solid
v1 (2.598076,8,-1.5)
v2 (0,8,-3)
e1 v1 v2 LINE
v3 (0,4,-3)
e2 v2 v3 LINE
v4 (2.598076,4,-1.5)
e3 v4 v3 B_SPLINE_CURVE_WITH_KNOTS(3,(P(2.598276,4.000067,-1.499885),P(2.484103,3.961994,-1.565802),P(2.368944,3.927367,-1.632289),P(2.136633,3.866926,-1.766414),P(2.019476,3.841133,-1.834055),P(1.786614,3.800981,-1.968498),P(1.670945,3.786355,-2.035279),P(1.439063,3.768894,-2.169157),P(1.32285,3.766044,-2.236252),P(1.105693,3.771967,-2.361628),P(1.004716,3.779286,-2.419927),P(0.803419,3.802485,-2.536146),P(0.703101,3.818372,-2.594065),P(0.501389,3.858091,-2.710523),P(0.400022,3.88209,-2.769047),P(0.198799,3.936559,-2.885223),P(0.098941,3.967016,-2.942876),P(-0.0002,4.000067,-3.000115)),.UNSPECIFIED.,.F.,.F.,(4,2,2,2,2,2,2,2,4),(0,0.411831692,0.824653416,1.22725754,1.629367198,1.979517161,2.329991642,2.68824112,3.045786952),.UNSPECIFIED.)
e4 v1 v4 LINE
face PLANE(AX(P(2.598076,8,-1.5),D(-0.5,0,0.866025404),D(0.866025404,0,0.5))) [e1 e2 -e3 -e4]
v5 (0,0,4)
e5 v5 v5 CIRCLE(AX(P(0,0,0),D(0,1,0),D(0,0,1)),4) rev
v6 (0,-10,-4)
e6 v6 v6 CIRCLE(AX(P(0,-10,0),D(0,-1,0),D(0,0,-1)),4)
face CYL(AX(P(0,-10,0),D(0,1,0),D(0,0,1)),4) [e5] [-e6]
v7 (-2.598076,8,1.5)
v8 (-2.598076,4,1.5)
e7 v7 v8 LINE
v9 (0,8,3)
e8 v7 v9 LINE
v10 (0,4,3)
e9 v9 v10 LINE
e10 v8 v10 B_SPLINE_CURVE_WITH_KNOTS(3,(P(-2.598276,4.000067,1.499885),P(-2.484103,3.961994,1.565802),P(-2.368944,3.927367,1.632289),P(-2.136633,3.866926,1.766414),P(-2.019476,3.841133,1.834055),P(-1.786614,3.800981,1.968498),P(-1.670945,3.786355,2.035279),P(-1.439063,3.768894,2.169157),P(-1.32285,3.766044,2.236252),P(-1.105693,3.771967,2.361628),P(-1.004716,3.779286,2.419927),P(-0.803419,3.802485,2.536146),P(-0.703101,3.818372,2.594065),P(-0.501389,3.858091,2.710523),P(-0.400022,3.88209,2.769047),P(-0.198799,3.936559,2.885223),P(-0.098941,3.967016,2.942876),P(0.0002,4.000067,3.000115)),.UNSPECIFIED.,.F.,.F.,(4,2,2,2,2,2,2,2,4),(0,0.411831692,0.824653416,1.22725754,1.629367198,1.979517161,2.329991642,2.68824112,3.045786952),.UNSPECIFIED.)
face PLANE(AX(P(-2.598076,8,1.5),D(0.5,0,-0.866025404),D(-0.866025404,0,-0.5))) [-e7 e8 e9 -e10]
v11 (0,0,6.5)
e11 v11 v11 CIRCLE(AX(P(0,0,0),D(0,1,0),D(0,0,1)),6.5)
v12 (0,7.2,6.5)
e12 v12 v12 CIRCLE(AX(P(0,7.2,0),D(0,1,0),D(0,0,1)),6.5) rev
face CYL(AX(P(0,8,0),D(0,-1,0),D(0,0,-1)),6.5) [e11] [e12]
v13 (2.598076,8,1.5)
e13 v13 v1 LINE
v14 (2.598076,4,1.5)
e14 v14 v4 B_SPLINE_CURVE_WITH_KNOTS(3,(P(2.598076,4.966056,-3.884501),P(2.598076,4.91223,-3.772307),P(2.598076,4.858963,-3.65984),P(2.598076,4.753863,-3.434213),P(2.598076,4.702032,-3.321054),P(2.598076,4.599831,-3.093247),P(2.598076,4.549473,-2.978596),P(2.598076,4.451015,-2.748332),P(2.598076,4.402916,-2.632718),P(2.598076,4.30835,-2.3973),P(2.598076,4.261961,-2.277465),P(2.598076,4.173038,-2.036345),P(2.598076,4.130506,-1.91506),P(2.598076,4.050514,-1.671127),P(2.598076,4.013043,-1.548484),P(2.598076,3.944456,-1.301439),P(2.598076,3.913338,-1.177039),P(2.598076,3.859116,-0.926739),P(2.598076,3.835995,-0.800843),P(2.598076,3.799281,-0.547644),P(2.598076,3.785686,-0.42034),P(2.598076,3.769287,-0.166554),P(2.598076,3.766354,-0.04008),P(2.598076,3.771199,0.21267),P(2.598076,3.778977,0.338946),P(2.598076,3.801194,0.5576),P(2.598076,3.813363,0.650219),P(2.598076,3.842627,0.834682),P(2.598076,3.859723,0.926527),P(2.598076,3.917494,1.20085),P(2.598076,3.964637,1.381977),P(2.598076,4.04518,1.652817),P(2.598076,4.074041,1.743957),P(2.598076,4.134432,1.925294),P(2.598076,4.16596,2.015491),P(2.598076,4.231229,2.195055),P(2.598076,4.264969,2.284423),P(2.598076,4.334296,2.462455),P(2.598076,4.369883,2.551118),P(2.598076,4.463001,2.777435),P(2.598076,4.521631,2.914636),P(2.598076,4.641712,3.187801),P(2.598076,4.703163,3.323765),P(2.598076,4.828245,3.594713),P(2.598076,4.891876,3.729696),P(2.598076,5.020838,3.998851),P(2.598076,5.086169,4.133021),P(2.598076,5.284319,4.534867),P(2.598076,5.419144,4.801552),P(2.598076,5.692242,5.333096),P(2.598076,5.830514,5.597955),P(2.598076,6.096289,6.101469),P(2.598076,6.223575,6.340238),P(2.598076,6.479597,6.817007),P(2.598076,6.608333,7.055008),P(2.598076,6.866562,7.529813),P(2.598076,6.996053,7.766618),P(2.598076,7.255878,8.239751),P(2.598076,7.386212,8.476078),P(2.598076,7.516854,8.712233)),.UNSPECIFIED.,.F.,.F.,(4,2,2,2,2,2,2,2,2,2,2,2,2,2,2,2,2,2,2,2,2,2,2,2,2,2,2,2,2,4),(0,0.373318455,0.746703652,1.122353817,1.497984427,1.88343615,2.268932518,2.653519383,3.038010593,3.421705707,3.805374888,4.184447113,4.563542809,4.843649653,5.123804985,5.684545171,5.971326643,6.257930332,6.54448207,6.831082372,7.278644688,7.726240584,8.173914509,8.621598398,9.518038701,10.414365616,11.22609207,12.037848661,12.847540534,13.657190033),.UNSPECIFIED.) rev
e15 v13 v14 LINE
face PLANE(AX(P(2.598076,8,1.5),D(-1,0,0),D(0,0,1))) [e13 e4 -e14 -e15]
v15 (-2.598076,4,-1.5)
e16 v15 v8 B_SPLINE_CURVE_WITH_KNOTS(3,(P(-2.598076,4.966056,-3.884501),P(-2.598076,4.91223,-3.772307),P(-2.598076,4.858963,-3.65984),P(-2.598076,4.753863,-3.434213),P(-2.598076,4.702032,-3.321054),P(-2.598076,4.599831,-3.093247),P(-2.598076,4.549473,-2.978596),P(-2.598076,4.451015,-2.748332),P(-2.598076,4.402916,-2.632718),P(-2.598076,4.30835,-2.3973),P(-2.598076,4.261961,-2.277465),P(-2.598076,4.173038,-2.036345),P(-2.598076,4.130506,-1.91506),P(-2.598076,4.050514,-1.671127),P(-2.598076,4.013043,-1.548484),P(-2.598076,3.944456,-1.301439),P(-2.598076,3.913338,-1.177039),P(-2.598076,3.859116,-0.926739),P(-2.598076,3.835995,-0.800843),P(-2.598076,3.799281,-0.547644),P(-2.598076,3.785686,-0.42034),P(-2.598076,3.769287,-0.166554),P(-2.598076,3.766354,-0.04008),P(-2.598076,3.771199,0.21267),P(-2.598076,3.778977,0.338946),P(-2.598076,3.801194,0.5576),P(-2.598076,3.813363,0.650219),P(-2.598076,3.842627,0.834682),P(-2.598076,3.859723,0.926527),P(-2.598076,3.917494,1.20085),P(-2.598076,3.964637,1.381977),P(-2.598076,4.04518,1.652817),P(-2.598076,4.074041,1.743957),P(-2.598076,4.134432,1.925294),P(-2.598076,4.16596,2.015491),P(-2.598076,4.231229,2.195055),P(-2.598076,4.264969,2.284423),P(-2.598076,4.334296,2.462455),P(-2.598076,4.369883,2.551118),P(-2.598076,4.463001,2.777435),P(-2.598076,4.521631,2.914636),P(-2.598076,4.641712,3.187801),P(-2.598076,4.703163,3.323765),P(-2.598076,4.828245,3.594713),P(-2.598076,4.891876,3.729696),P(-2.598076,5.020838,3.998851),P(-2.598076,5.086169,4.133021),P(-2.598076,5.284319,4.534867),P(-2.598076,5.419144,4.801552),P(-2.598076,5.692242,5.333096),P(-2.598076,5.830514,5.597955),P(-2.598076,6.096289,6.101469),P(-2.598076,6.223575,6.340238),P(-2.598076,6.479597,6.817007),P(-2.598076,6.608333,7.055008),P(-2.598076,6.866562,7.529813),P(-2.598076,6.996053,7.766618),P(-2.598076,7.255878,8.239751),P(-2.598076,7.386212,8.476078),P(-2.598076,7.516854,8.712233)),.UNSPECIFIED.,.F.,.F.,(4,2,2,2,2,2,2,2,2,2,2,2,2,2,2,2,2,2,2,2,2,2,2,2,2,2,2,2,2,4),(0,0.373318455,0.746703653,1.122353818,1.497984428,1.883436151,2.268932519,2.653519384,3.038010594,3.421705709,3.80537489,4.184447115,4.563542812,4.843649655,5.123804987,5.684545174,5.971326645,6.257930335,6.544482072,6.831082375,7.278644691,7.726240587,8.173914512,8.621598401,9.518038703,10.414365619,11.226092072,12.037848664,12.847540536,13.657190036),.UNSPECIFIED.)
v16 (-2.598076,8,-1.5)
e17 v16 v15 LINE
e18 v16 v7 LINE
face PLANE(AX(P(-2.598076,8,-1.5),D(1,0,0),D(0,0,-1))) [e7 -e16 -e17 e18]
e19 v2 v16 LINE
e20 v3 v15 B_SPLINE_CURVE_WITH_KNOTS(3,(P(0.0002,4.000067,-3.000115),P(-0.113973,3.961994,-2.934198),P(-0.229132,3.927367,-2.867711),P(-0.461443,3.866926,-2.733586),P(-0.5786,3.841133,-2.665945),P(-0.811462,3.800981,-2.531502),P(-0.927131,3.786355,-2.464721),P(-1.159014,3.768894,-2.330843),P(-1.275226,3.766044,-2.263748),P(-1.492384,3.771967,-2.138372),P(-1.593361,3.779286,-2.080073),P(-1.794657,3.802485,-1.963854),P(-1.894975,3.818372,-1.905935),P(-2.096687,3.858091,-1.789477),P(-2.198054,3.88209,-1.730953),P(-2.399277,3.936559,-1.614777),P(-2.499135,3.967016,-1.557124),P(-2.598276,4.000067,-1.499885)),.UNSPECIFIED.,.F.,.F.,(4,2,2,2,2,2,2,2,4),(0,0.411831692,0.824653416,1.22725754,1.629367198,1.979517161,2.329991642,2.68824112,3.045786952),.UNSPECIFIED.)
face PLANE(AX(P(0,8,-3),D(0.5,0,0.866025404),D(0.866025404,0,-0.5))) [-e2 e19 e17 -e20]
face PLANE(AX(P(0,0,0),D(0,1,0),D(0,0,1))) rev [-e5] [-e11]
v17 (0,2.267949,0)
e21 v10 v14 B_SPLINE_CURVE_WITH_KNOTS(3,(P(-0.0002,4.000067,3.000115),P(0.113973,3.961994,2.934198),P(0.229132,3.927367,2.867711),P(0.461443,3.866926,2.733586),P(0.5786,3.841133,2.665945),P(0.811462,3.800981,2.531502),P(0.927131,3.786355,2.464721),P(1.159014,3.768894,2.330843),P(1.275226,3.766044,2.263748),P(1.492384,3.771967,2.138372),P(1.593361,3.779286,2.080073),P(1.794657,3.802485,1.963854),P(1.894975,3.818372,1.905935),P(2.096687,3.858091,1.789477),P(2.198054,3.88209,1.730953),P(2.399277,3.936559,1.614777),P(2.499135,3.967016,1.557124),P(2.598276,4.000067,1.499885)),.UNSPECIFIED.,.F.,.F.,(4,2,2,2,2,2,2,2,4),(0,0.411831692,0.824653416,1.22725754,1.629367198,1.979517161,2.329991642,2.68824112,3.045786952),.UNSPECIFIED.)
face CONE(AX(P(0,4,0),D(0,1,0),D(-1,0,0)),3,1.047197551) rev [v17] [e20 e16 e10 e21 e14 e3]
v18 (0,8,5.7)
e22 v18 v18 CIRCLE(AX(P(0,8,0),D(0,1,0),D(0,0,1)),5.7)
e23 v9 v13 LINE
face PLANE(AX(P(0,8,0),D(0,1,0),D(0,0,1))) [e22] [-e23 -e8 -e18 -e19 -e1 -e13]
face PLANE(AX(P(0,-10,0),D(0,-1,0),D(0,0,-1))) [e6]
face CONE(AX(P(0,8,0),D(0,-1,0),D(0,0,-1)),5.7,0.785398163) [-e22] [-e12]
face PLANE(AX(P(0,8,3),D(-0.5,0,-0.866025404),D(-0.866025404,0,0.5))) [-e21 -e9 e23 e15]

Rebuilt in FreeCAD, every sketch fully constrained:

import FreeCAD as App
import Part
import Sketcher
Q = App.Units.Quantity


def edges_at(feature, points):
    """Names of the edges that pass closest to the given points."""
    edges = feature.Shape.Edges
    near = lambda p: min(range(len(edges)), key=lambda i: edges[i].distToShape(Part.Vertex(*p))[0])
    return sorted({f"Edge{near(p) + 1}" for p in points})

doc = App.newDocument("Part")
body = doc.addObject("PartDesign::Body", "Body")

# Sketch on XZ plane
sketch1 = doc.addObject("Sketcher::SketchObject", "Sketch")
body.addObject(sketch1)
sketch1.AttachmentSupport = (doc.XZ_Plane, [""])
sketch1.MapMode = "FlatFace"
sketch1.addGeometry(Part.Circle(App.Vector(0, 0, 0), App.Vector(0, 0, 1), 6.5), False)
sketch1.addGeometry(Part.LineSegment(App.Vector(-2.6, -1.5, 0), App.Vector(0, -3, 0)), False)
sketch1.addGeometry(Part.LineSegment(App.Vector(0, -3, 0), App.Vector(2.6, -1.5, 0)), False)
sketch1.addGeometry(Part.LineSegment(App.Vector(2.6, -1.5, 0), App.Vector(2.6, 1.5, 0)), False)
sketch1.addGeometry(Part.LineSegment(App.Vector(2.6, 1.5, 0), App.Vector(0, 3, 0)), False)
sketch1.addGeometry(Part.LineSegment(App.Vector(0, 3, 0), App.Vector(-2.6, 1.5, 0)), False)
sketch1.addGeometry(Part.LineSegment(App.Vector(-2.6, 1.5, 0), App.Vector(-2.6, -1.5, 0)), False)
sketch1.addConstraint(Sketcher.Constraint("Coincident", 1, 2, 2, 1))
sketch1.addConstraint(Sketcher.Constraint("Coincident", 2, 2, 3, 1))
sketch1.addConstraint(Sketcher.Constraint("Coincident", 3, 2, 4, 1))
sketch1.addConstraint(Sketcher.Constraint("Coincident", 4, 2, 5, 1))
sketch1.addConstraint(Sketcher.Constraint("Coincident", 5, 2, 6, 1))
sketch1.addConstraint(Sketcher.Constraint("Coincident", 6, 2, 1, 1))
sketch1.addConstraint(Sketcher.Constraint("Vertical", 3))
sketch1.addConstraint(Sketcher.Constraint("Vertical", 6))
sketch1.addConstraint(Sketcher.Constraint("Coincident", 0, 3, -1, 1))
sketch1.addConstraint(Sketcher.Constraint("Symmetric", 1, 2, 4, 2, -1, 1))
sketch1.addConstraint(Sketcher.Constraint("Symmetric", 2, 2, 5, 2, -1, 1))
sketch1.addConstraint(Sketcher.Constraint("PointOnObject", 1, 2, -2))
sketch1.addConstraint(Sketcher.Constraint("Parallel", 1, 4))
sketch1.addConstraint(Sketcher.Constraint("Horizontal", 3, 2, 5, 2))
sketch1.addConstraint(Sketcher.Constraint("Diameter", 0, Q("13 mm")))
sketch1.addConstraint(Sketcher.Constraint("DistanceY", 3, 1, 3, 2, Q("3 mm")))
sketch1.addConstraint(Sketcher.Constraint("Angle", 1, Q("-30 deg")))
sketch1.addConstraint(Sketcher.Constraint("Distance", 1, Q("3 mm")))
pad1 = doc.addObject("PartDesign::Pad", "Pad")
body.addObject(pad1)
pad1.Profile = sketch1
pad1.Length = 8
pad1.Reversed = True
doc.recompute()

chamfer = doc.addObject("PartDesign::Chamfer", "Chamfer")
body.addObject(chamfer)
chamfer.Base = (pad1, edges_at(pad1, [(0, 8, -6.5)]))
chamfer.Size = 0.8

# Sketch on XY plane
sketch2 = doc.addObject("Sketcher::SketchObject", "Sketch001")
body.addObject(sketch2)
sketch2.AttachmentSupport = (doc.XY_Plane, [""])
sketch2.MapMode = "FlatFace"
sketch2.addGeometry(Part.LineSegment(App.Vector(0, 2.3, 0), App.Vector(0, 0, 0)), False)
sketch2.addGeometry(Part.LineSegment(App.Vector(0, 0, 0), App.Vector(6.5, 0, 0)), False)
sketch2.addGeometry(Part.LineSegment(App.Vector(6.5, 0, 0), App.Vector(6.5, 4, 0)), False)
sketch2.addGeometry(Part.LineSegment(App.Vector(6.5, 4, 0), App.Vector(3, 4, 0)), False)
sketch2.addGeometry(Part.LineSegment(App.Vector(3, 4, 0), App.Vector(0, 2.3, 0)), False)
sketch2.addConstraint(Sketcher.Constraint("Coincident", 0, 2, 1, 1))
sketch2.addConstraint(Sketcher.Constraint("Coincident", 1, 2, 2, 1))
sketch2.addConstraint(Sketcher.Constraint("Coincident", 2, 2, 3, 1))
sketch2.addConstraint(Sketcher.Constraint("Coincident", 3, 2, 4, 1))
sketch2.addConstraint(Sketcher.Constraint("Coincident", 4, 2, 0, 1))
sketch2.addConstraint(Sketcher.Constraint("Vertical", 0))
sketch2.addConstraint(Sketcher.Constraint("Horizontal", 1))
sketch2.addConstraint(Sketcher.Constraint("Vertical", 2))
sketch2.addConstraint(Sketcher.Constraint("Horizontal", 3))
sketch2.addConstraint(Sketcher.Constraint("Coincident", 0, 2, -1, 1))
sketch2.addConstraint(Sketcher.Constraint("DistanceY", 2, 1, 2, 2, Q("4 mm")))
sketch2.addConstraint(Sketcher.Constraint("Angle", 4, Q("-150 deg")))
sketch2.addConstraint(Sketcher.Constraint("DistanceX", 1, 1, 1, 2, Q("6.5 mm")))
sketch2.addConstraint(Sketcher.Constraint("DistanceX", 3, 2, 3, 1, Q("3.5 mm")))
revolution = doc.addObject("PartDesign::Revolution", "Revolution")
body.addObject(revolution)
revolution.Profile = sketch2
revolution.ReferenceAxis = (sketch2, ["V_Axis"])
revolution.Angle = 360

# Sketch on XZ plane
sketch3 = doc.addObject("Sketcher::SketchObject", "Sketch002")
body.addObject(sketch3)
sketch3.AttachmentSupport = (doc.XZ_Plane, [""])
sketch3.MapMode = "FlatFace"
sketch3.addGeometry(Part.Circle(App.Vector(0, 0, 0), App.Vector(0, 0, 1), 4), False)
sketch3.addConstraint(Sketcher.Constraint("Coincident", 0, 3, -1, 1))
sketch3.addConstraint(Sketcher.Constraint("Diameter", 0, Q("8 mm")))
pad2 = doc.addObject("PartDesign::Pad", "Pad001")
body.addObject(pad2)
pad2.Profile = sketch3
pad2.Length = 10

doc.recompute()
